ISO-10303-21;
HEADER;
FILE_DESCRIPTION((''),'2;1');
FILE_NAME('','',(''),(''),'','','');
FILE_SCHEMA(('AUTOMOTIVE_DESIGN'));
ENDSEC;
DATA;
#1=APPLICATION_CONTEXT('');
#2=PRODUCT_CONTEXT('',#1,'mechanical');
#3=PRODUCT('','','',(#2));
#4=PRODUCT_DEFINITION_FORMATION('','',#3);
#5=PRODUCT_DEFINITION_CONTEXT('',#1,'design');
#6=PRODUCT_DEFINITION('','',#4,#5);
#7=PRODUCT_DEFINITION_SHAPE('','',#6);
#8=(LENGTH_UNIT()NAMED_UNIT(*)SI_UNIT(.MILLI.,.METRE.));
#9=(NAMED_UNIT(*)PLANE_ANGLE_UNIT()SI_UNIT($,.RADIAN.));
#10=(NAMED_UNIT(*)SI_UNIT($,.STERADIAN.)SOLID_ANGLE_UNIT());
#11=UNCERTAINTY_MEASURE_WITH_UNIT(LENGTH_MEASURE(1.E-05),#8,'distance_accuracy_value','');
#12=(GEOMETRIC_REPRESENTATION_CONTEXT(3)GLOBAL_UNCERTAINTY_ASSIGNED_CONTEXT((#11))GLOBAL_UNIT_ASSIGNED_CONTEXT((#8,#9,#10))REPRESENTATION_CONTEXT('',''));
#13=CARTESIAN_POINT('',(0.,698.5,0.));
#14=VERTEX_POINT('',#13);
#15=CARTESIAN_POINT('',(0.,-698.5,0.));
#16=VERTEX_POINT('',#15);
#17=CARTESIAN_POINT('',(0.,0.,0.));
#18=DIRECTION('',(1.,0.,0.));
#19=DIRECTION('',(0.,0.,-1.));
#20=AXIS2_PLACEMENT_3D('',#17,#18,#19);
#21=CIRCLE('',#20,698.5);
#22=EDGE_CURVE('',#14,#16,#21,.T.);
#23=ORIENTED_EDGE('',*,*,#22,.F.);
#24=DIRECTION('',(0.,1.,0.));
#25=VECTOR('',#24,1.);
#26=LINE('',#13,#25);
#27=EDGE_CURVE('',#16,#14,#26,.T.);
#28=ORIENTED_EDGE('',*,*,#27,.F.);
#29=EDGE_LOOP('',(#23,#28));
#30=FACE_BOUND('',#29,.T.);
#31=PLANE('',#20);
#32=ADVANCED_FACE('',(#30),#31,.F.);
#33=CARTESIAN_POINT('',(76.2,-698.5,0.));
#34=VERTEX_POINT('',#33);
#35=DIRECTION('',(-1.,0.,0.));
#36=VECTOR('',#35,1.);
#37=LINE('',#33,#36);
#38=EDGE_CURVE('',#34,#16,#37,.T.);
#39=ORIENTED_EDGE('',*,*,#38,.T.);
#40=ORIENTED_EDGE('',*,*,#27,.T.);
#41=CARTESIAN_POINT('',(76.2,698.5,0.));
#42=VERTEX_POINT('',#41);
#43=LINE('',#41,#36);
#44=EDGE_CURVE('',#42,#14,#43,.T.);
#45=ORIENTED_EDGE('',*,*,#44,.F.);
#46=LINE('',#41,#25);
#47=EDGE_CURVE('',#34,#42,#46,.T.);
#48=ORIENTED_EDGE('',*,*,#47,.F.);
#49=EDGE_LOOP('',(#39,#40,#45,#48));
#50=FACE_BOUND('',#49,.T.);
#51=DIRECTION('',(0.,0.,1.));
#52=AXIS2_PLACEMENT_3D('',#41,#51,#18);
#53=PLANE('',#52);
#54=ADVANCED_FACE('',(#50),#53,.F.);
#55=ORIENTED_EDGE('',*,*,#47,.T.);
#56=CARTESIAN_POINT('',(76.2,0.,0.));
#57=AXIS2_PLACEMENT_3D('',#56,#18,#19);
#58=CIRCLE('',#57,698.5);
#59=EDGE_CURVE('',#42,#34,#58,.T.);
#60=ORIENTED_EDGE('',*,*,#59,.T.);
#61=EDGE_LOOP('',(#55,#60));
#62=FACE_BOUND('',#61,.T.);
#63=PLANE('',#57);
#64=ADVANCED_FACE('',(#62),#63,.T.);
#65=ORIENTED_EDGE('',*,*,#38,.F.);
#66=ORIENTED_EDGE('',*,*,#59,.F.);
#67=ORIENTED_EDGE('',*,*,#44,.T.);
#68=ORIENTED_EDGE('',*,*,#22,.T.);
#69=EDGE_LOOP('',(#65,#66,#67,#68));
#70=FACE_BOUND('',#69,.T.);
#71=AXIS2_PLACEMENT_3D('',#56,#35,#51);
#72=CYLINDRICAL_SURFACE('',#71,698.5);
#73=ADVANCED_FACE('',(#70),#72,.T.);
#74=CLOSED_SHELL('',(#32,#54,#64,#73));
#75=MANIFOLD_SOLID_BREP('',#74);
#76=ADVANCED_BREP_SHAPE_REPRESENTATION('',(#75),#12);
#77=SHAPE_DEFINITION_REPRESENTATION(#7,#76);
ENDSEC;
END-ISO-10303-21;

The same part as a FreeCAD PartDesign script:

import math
import FreeCAD as App
import Part
import Sketcher

V = App.Vector
Q = App.Units.Quantity

doc = App.newDocument("Part")
body = doc.addObject("PartDesign::Body", "Body")

sketch1 = doc.addObject("Sketcher::SketchObject", "Sketch")
body.addObject(sketch1)
sketch1.AttachmentSupport = (doc.YZ_Plane, [""])
sketch1.MapMode = "FlatFace"
sketch1.addGeometry(Part.LineSegment(V(-698, 0, 0), V(698, 0, 0)), False)
sketch1.addGeometry(Part.ArcOfCircle(Part.Circle(V(0, 0, 0), V(0, 0, 1), 698), math.radians(0), math.radians(180)), False)
sketch1.addConstraint(Sketcher.Constraint("Coincident", 0, 1, 1, 2))
sketch1.addConstraint(Sketcher.Constraint("Coincident", 1, 1, 0, 2))
sketch1.addConstraint(Sketcher.Constraint("Horizontal", 0))
sketch1.addConstraint(Sketcher.Constraint("Coincident", 1, 3, -1, 1))
sketch1.addConstraint(Sketcher.Constraint("PointOnObject", 0, 1, -1))
sketch1.addConstraint(Sketcher.Constraint("Radius", 1, Q("27.5 in")))
pad1 = doc.addObject("PartDesign::Pad", "Pad")
body.addObject(pad1)
pad1.Profile = sketch1
pad1.Length = Q("3 in")

doc.recompute()
